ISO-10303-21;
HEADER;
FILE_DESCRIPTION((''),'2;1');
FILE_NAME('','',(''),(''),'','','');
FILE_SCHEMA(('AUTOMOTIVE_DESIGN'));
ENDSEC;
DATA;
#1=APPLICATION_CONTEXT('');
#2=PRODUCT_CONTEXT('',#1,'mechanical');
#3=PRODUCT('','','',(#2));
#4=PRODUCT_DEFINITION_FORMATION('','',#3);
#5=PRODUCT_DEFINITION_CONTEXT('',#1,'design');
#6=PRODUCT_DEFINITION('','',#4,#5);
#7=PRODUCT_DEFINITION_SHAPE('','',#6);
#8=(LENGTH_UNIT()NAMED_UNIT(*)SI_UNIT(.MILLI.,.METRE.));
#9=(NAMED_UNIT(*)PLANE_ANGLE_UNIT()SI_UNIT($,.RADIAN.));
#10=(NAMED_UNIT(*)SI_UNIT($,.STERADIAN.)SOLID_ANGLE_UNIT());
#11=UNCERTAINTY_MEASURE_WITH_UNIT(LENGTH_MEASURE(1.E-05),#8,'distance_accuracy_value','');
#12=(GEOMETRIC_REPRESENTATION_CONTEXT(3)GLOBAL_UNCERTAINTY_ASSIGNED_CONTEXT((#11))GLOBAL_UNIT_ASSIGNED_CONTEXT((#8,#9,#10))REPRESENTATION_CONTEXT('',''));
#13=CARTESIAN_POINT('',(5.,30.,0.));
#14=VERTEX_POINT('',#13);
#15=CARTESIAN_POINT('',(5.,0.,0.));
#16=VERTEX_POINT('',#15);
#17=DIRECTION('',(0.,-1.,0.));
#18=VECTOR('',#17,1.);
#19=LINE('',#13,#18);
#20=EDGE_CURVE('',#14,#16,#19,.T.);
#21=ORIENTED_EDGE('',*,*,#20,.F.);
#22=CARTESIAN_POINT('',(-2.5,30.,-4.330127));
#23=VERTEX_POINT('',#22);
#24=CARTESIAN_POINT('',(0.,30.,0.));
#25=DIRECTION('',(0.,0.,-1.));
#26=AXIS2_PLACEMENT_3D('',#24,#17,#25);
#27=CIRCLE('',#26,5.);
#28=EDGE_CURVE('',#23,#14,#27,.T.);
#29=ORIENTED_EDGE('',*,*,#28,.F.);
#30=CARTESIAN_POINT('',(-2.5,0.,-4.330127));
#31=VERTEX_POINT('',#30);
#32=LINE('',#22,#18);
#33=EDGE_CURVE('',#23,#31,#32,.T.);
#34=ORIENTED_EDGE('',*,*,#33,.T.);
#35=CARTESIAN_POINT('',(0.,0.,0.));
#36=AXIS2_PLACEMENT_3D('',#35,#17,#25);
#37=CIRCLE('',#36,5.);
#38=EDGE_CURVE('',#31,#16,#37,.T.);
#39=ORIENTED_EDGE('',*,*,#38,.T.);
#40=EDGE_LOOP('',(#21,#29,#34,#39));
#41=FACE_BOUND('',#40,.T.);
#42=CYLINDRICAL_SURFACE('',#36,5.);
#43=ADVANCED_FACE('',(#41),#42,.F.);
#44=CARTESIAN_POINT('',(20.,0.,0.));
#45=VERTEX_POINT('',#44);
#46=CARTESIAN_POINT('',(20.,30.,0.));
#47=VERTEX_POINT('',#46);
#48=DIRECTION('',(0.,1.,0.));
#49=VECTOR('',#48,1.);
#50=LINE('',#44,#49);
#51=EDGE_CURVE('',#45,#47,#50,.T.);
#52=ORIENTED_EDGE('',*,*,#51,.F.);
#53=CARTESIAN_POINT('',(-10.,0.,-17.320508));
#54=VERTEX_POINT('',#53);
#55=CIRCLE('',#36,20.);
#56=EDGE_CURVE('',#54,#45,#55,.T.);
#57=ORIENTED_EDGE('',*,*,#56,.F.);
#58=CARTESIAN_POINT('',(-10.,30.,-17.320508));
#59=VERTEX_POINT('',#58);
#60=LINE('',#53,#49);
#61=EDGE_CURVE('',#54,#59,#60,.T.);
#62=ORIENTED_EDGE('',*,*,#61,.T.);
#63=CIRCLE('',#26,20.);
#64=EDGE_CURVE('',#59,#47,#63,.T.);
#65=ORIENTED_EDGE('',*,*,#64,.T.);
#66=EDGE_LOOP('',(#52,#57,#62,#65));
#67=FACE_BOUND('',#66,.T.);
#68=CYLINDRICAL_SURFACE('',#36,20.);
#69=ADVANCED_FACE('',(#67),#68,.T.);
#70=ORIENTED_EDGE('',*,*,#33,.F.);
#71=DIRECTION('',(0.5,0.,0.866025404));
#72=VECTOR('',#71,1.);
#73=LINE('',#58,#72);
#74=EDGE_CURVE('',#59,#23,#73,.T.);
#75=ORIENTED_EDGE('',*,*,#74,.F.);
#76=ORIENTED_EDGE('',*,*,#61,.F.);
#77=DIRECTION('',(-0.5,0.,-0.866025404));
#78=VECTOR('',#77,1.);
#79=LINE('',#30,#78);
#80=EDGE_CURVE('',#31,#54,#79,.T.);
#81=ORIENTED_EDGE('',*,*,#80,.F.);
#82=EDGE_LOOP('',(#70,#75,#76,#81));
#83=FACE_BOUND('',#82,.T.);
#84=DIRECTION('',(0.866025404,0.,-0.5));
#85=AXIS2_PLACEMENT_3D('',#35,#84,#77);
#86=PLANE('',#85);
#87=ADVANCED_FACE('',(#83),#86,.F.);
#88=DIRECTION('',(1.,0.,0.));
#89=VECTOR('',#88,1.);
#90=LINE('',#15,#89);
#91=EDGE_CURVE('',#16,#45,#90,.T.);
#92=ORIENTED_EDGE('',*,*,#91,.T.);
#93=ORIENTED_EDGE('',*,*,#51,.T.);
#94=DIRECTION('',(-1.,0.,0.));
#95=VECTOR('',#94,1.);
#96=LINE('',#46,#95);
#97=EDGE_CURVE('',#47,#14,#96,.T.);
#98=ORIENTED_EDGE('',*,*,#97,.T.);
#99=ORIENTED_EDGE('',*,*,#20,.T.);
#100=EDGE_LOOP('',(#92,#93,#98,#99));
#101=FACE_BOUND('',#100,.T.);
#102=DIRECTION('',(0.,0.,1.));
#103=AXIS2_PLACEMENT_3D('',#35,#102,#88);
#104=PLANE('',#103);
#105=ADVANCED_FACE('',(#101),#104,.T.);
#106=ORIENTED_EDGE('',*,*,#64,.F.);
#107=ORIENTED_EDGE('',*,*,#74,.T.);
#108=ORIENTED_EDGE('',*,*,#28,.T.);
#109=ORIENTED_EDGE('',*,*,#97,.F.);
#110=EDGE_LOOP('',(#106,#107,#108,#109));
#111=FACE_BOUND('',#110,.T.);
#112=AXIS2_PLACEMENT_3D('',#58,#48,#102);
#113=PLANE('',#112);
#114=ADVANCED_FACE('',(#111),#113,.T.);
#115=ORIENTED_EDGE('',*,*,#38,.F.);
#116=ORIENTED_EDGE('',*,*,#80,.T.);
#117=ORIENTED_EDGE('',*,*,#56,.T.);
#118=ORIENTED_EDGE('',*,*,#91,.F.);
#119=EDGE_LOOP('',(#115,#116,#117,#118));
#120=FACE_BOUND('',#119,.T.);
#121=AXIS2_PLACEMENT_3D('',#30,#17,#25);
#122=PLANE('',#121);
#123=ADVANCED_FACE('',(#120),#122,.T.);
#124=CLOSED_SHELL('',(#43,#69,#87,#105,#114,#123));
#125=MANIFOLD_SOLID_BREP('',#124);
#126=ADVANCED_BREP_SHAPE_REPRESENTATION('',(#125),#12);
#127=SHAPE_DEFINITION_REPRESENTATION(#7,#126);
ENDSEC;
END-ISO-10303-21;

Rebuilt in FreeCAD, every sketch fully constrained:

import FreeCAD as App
import Part
import Sketcher

V = App.Vector

doc = App.newDocument("Part")
params = doc.addObject("Spreadsheet::Sheet", "Params")
for row, (alias, value) in enumerate([
    ("sketch1_width", "15 mm"),
    ("sketch1_height", "30 mm"),
    ("revolution_angle", "120 deg"),
], start=1):
    params.set(f"A{row}", alias)
    params.set(f"B{row}", "=" + value)
    params.setAlias(f"B{row}", alias)

body = doc.addObject("PartDesign::Body", "Body")

# Sketch on XY plane
sketch1 = body.newObject("Sketcher::SketchObject", "Sketch")
sketch1.AttachmentSupport = (doc.getObject("XY_Plane"), [""])
sketch1.MapMode = "FlatFace"
sketch1.addGeometry(Part.LineSegment(V(5, 30, 0), V(5, 0, 0)), False)
sketch1.addGeometry(Part.LineSegment(V(5, 0, 0), V(20, 0, 0)), False)
sketch1.addGeometry(Part.LineSegment(V(20, 0, 0), V(20, 30, 0)), False)
sketch1.addGeometry(Part.LineSegment(V(20, 30, 0), V(5, 30, 0)), False)
sketch1.addConstraint(Sketcher.Constraint("Coincident", 0, 2, 1, 1))
sketch1.addConstraint(Sketcher.Constraint("Coincident", 1, 2, 2, 1))
sketch1.addConstraint(Sketcher.Constraint("Coincident", 2, 2, 3, 1))
sketch1.addConstraint(Sketcher.Constraint("Coincident", 3, 2, 0, 1))
sketch1.addConstraint(Sketcher.Constraint("Vertical", 0))
sketch1.addConstraint(Sketcher.Constraint("Horizontal", 1))
sketch1.addConstraint(Sketcher.Constraint("Vertical", 2))
sketch1.addConstraint(Sketcher.Constraint("Horizontal", 3))
sketch1.addConstraint(Sketcher.Constraint("PointOnObject", 0, 2, -1))
sketch1.addConstraint(Sketcher.Constraint("DistanceX", 1, 1, 1, 2, 15.0))
sketch1.addConstraint(Sketcher.Constraint("DistanceY", 0, 2, 0, 1, 30.0))
sketch1.addConstraint(Sketcher.Constraint("DistanceX", -1, 1, 0, 2, 5.0))
sketch1.setExpression("Constraints[9]", "Params.sketch1_width")
sketch1.setExpression("Constraints[10]", "Params.sketch1_height")
revolution = body.newObject("PartDesign::Revolution", "Revolution")
revolution.Profile = sketch1
revolution.ReferenceAxis = (sketch1, ["V_Axis"])
revolution.setExpression("Angle", "Params.revolution_angle")

doc.recompute()
